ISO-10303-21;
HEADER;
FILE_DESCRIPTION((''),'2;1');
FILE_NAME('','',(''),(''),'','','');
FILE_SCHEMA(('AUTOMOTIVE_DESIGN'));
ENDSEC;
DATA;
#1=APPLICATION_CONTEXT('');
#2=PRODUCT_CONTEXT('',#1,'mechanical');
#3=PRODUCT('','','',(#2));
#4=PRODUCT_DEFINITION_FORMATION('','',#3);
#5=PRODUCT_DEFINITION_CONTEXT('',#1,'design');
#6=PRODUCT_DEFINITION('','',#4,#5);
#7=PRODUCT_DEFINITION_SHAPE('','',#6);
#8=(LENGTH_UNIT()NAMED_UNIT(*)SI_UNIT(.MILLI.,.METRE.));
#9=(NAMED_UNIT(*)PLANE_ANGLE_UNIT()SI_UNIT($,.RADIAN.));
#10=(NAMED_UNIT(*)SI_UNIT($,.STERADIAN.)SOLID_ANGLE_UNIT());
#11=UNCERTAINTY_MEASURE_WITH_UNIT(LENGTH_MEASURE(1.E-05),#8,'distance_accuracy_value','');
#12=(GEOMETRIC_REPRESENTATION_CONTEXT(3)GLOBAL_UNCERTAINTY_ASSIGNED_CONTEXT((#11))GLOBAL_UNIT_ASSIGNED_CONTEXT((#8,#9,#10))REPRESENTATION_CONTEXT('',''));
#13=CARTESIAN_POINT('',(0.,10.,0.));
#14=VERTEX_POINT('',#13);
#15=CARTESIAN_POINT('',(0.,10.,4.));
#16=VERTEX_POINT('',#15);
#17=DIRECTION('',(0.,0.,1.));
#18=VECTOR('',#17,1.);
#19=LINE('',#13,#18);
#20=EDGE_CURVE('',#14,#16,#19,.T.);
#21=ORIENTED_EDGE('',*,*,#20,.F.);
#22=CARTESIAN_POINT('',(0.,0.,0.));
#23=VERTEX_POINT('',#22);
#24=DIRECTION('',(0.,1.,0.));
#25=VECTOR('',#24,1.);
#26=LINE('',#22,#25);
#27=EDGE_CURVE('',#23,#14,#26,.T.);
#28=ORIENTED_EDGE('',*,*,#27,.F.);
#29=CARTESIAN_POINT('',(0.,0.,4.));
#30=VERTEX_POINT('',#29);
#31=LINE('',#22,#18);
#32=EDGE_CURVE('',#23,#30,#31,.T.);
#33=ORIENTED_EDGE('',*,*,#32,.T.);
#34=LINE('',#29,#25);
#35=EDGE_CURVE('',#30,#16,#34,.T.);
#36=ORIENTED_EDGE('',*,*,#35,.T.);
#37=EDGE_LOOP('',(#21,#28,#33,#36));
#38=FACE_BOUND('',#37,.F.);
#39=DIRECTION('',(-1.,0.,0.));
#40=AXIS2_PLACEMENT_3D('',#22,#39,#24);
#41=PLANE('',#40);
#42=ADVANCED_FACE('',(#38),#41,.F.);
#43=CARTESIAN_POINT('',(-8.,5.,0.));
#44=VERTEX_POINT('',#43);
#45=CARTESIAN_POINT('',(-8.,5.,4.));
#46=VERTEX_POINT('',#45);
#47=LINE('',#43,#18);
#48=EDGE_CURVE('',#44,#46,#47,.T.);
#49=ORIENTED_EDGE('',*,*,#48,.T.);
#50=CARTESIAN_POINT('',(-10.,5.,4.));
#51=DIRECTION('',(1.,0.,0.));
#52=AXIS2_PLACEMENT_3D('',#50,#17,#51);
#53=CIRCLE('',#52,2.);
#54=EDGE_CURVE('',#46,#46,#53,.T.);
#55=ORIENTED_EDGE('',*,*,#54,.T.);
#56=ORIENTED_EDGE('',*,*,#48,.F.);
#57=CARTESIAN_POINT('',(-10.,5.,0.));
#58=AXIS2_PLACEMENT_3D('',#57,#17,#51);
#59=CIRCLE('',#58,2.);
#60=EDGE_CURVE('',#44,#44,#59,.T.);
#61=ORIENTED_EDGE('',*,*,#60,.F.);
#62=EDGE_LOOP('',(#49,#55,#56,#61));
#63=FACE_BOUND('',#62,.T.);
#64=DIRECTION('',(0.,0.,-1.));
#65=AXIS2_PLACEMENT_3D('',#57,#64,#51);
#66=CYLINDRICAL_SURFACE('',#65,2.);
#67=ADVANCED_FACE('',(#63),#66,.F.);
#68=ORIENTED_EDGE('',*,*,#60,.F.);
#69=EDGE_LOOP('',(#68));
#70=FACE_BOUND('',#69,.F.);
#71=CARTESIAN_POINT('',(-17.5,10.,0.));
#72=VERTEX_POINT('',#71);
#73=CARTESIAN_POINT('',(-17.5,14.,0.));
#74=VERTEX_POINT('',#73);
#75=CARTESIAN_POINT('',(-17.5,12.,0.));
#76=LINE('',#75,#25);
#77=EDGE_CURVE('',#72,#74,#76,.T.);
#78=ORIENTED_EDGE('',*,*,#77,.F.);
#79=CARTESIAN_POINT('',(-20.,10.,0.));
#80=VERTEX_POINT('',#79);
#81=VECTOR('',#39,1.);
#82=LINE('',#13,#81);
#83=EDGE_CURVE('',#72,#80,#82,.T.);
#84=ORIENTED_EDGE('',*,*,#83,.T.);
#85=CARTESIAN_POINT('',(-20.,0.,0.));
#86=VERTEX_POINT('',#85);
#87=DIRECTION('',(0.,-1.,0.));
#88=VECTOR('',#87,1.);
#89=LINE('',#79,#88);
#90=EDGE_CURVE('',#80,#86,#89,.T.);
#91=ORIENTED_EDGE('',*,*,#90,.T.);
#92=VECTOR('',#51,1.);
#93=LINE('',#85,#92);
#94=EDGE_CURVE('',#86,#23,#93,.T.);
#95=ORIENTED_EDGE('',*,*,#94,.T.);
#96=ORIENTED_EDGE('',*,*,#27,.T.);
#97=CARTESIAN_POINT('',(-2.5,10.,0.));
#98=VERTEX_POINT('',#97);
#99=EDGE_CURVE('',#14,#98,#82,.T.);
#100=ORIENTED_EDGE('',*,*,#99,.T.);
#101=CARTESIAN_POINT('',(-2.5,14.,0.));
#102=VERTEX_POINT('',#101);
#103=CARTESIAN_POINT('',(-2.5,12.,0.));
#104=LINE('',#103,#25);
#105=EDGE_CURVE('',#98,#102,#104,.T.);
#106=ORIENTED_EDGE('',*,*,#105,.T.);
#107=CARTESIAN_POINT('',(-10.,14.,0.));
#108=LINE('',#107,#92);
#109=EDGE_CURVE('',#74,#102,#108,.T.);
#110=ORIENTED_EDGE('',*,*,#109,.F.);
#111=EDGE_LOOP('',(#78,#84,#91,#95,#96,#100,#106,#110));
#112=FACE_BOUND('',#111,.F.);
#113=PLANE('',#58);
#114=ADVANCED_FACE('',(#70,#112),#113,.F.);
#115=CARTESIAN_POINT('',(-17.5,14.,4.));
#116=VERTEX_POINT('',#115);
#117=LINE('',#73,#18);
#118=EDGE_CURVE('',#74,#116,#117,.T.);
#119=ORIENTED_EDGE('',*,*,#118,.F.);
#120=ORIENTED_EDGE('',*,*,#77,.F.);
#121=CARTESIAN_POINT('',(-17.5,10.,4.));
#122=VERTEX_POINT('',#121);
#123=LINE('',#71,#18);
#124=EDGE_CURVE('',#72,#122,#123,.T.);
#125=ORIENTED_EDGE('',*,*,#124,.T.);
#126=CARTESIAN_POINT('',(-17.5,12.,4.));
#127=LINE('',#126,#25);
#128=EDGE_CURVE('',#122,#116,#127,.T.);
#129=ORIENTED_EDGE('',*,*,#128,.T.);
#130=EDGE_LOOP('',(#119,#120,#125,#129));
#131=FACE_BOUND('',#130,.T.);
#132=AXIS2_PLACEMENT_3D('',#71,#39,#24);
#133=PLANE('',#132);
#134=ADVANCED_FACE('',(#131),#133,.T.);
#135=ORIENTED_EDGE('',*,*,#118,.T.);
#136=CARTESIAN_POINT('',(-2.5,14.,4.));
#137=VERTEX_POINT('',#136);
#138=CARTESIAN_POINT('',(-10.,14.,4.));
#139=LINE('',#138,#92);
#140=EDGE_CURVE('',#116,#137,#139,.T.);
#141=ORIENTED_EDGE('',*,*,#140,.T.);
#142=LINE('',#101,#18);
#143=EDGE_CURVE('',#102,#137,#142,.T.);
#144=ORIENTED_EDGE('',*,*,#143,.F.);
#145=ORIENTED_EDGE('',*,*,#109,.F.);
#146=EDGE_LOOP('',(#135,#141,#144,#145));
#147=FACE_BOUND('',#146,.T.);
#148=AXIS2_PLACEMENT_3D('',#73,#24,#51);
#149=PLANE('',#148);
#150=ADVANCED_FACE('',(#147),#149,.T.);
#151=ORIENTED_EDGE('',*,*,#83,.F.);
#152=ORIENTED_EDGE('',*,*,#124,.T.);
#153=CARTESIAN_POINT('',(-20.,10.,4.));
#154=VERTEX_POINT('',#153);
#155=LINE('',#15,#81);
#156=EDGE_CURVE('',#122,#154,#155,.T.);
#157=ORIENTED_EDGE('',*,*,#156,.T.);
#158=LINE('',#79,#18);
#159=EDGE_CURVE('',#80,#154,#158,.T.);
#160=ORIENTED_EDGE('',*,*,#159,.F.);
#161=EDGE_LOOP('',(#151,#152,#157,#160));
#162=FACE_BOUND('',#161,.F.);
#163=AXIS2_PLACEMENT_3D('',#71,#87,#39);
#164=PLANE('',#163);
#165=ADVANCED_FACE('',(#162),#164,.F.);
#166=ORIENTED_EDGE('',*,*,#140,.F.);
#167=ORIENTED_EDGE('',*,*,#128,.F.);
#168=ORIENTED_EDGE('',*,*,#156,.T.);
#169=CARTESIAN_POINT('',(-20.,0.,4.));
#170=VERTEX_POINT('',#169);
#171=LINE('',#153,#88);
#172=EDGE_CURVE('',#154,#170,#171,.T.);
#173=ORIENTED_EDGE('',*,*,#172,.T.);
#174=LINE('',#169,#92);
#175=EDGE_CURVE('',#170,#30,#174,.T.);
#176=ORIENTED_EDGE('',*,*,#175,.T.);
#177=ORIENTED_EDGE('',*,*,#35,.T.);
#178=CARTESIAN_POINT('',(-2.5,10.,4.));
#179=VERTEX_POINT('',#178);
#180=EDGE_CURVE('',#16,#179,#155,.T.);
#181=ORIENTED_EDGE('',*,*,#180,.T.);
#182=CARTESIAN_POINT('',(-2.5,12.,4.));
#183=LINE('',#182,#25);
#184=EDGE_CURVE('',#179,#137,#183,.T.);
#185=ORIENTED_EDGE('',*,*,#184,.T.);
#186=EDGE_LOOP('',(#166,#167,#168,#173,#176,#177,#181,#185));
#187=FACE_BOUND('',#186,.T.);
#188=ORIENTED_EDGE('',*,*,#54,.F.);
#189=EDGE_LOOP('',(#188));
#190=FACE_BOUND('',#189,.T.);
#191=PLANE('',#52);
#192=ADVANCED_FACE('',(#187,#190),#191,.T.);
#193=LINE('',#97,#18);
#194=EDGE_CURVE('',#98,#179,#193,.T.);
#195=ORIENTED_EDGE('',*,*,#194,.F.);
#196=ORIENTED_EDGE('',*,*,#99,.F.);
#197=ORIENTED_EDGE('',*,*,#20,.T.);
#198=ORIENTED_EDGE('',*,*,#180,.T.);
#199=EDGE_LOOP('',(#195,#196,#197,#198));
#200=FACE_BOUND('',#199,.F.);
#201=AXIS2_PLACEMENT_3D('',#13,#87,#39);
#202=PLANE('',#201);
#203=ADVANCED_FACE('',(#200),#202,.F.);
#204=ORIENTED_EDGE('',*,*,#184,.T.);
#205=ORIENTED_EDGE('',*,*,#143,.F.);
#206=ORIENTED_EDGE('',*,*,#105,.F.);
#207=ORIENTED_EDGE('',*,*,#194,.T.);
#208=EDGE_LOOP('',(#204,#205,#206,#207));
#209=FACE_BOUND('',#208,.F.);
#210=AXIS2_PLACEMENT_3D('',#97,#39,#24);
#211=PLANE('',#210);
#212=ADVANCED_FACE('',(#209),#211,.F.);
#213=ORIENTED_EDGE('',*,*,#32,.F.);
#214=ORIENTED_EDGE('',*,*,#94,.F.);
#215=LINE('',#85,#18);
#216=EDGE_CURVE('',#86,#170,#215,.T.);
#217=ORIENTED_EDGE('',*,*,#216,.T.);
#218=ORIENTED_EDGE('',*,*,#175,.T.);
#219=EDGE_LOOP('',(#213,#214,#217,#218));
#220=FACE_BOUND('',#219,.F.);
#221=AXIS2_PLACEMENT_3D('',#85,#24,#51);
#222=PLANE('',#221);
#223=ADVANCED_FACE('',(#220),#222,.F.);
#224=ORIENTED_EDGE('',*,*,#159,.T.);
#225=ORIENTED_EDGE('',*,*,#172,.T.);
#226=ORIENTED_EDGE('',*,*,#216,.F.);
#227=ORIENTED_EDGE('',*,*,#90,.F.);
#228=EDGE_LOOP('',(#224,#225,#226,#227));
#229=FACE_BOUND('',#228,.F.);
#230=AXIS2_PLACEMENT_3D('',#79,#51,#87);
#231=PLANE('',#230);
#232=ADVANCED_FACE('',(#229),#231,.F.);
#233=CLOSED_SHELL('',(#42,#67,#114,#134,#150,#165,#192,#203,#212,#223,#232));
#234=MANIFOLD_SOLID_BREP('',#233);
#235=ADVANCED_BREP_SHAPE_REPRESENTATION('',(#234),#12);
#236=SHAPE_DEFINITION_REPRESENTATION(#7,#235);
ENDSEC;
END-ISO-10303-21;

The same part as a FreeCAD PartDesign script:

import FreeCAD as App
import Part
import Sketcher
from FreeCAD import Vector
Q = App.Units.Quantity


def add_polygon(sketch, points):
    """Adds a closed chain of lines whose ends are joined by coincident constraints."""
    first, n = sketch.GeometryCount, len(points)
    for a, b in zip(points, points[1:] + points[:1]):
        sketch.addGeometry(Part.LineSegment(App.Vector(*a, 0), App.Vector(*b, 0)), False)
    for i in range(n):
        sketch.addConstraint(Sketcher.Constraint("Coincident", first + i, 2, first + (i + 1) % n, 1))

doc = App.newDocument("Part")
body = doc.addObject("PartDesign::Body", "Body")

sketch1 = body.newObject("Sketcher::SketchObject", "Sketch")
sketch1.AttachmentSupport = (doc.getObject("XY_Plane"), [""])
sketch1.MapMode = "FlatFace"
add_polygon(sketch1, [(-20, 0), (0, 0), (0, 10), (-2.5, 10), (-2.5, 14), (-17.5, 14), (-17.5, 10), (-20, 10)])
sketch1.addGeometry(Part.Circle(Vector(-10, 5, 0), Vector(0, 0, 1), 2), False)
sketch1.addConstraint(Sketcher.Constraint("Horizontal", 0))
sketch1.addConstraint(Sketcher.Constraint("Vertical", 1))
sketch1.addConstraint(Sketcher.Constraint("Horizontal", 2))
sketch1.addConstraint(Sketcher.Constraint("Vertical", 3))
sketch1.addConstraint(Sketcher.Constraint("Horizontal", 4))
sketch1.addConstraint(Sketcher.Constraint("Vertical", 5))
sketch1.addConstraint(Sketcher.Constraint("Horizontal", 6))
sketch1.addConstraint(Sketcher.Constraint("Vertical", 7))
sketch1.addConstraint(Sketcher.Constraint("Coincident", 0, 2, -1, 1))
sketch1.addConstraint(Sketcher.Constraint("Horizontal", 2, 2, 5, 2))
sketch1.addConstraint(Sketcher.Constraint("Equal", 2, 6))
sketch1.addConstraint(Sketcher.Constraint("Diameter", 8, Q("4 mm")))
sketch1.addConstraint(Sketcher.Constraint("DistanceX", 0, 1, 0, 2, Q("20 mm")))
sketch1.addConstraint(Sketcher.Constraint("DistanceX", 4, 2, 4, 1, Q("15 mm")))
sketch1.addConstraint(Sketcher.Constraint("DistanceY", 1, 1, 1, 2, Q("10 mm")))
sketch1.addConstraint(Sketcher.Constraint("DistanceY", 3, 1, 3, 2, Q("4 mm")))
sketch1.addConstraint(Sketcher.Constraint("DistanceX", 8, 3, -1, 1, Q("10 mm")))
sketch1.addConstraint(Sketcher.Constraint("DistanceY", -1, 1, 8, 3, Q("5 mm")))
pad1 = body.newObject("PartDesign::Pad", "Pad")
pad1.Profile = sketch1
pad1.Length = 4

doc.recompute()
